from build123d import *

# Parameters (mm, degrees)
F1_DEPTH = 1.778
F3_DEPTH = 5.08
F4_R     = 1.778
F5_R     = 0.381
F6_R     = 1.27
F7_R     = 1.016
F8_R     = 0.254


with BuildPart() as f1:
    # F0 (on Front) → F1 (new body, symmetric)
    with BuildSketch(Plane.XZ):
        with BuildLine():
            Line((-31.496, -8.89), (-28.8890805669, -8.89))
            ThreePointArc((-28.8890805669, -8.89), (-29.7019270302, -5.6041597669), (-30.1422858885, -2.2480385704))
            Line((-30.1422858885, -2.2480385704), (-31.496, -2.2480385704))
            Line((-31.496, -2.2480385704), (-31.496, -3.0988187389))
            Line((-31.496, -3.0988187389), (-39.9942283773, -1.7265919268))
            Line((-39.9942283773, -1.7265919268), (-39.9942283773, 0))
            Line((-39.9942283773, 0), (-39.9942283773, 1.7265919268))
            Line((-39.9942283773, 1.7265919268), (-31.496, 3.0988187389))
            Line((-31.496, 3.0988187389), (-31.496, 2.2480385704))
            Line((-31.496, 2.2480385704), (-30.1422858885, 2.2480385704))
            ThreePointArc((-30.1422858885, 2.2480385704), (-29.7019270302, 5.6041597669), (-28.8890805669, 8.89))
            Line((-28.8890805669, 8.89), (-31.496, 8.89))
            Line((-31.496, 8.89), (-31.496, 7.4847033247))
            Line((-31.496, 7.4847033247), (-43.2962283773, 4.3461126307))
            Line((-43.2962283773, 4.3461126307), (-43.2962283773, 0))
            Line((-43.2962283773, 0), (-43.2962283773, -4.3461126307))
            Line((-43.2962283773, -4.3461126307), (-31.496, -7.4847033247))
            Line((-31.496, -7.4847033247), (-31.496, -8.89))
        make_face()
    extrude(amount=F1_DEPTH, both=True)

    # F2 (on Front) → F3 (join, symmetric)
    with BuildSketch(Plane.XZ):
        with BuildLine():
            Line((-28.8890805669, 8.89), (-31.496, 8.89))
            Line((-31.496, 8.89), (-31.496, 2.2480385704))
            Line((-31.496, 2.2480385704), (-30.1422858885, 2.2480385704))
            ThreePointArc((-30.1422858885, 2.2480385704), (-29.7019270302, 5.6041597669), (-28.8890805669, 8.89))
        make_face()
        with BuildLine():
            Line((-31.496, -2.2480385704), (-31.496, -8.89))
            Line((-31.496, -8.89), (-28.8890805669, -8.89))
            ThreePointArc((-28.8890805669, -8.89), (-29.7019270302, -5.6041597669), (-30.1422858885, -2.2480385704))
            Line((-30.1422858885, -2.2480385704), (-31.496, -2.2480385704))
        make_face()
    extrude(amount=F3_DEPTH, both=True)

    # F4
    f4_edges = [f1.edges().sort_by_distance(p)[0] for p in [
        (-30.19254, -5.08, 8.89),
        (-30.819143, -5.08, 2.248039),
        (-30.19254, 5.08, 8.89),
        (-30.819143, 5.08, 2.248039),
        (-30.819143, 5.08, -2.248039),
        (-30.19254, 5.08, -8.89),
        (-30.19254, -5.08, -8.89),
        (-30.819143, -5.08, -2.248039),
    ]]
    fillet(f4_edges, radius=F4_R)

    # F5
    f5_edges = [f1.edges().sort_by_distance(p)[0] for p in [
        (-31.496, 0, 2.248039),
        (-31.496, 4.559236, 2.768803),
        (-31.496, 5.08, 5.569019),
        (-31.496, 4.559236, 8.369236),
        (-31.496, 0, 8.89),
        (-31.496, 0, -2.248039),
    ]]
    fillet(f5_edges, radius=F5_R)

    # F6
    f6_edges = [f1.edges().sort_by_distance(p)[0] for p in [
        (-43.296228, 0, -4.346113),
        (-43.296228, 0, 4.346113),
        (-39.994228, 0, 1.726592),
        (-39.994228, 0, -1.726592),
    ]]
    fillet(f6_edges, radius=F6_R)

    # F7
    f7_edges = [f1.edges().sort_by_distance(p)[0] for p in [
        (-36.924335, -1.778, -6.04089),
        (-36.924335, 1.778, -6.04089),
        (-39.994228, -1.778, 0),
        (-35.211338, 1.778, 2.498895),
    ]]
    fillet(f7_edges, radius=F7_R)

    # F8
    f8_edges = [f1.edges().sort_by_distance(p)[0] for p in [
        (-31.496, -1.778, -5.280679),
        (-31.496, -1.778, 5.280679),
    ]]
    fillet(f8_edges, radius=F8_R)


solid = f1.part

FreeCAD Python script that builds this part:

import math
import FreeCAD as App
import Part
import Sketcher
from FreeCAD import Vector
Q = App.Units.Quantity


def edges_at(feature, points):
    """Names of the edges that pass closest to the given points."""
    edges = feature.Shape.Edges
    near = lambda p: min(range(len(edges)), key=lambda i: edges[i].distToShape(Part.Vertex(*p))[0])
    return sorted({f"Edge{near(p) + 1}" for p in points})

doc = App.newDocument("Part")
body = doc.addObject("PartDesign::Body", "Body")

sketch1 = body.newObject("Sketcher::SketchObject", "Sketch")
sketch1.AttachmentSupport = (doc.getObject("XZ_Plane"), [""])
sketch1.MapMode = "FlatFace"
sketch1.addGeometry(Part.LineSegment(Vector(-31.5, -8.9, 0), Vector(-28.9, -8.9, 0)), False)
sketch1.addGeometry(Part.ArcOfCircle(Part.Circle(Vector(0, 0, 0), Vector(0, 0, 1), 30.2), math.radians(-175.73), math.radians(-162.9)), False)
sketch1.addGeometry(Part.LineSegment(Vector(-30.1, -2.2, 0), Vector(-31.5, -2.2, 0)), False)
sketch1.addGeometry(Part.LineSegment(Vector(-31.5, -2.2, 0), Vector(-31.5, -3.1, 0)), False)
sketch1.addGeometry(Part.LineSegment(Vector(-31.5, -3.1, 0), Vector(-40, -1.7, 0)), False)
sketch1.addGeometry(Part.LineSegment(Vector(-40, -1.7, 0), Vector(-40, 1.7, 0)), False)
sketch1.addGeometry(Part.LineSegment(Vector(-40, 1.7, 0), Vector(-31.5, 3.1, 0)), False)
sketch1.addGeometry(Part.LineSegment(Vector(-31.5, 3.1, 0), Vector(-31.5, 2.2, 0)), False)
sketch1.addGeometry(Part.LineSegment(Vector(-31.5, 2.2, 0), Vector(-30.1, 2.2, 0)), False)
sketch1.addGeometry(Part.ArcOfCircle(Part.Circle(Vector(0, 0, 0), Vector(0, 0, 1), 30.2), math.radians(162.9), math.radians(175.73)), False)
sketch1.addGeometry(Part.LineSegment(Vector(-28.9, 8.9, 0), Vector(-31.5, 8.9, 0)), False)
sketch1.addGeometry(Part.LineSegment(Vector(-31.5, 8.9, 0), Vector(-31.5, 7.5, 0)), False)
sketch1.addGeometry(Part.LineSegment(Vector(-31.5, 7.5, 0), Vector(-43.3, 4.3, 0)), False)
sketch1.addGeometry(Part.LineSegment(Vector(-43.3, 4.3, 0), Vector(-43.3, -4.3, 0)), False)
sketch1.addGeometry(Part.LineSegment(Vector(-43.3, -4.3, 0), Vector(-31.5, -7.5, 0)), False)
sketch1.addGeometry(Part.LineSegment(Vector(-31.5, -7.5, 0), Vector(-31.5, -8.9, 0)), False)
sketch1.addConstraint(Sketcher.Constraint("Coincident", 0, 2, 1, 2))
sketch1.addConstraint(Sketcher.Constraint("Coincident", 1, 1, 2, 1))
sketch1.addConstraint(Sketcher.Constraint("Coincident", 2, 2, 3, 1))
sketch1.addConstraint(Sketcher.Constraint("Coincident", 3, 2, 4, 1))
sketch1.addConstraint(Sketcher.Constraint("Coincident", 4, 2, 5, 1))
sketch1.addConstraint(Sketcher.Constraint("Coincident", 5, 2, 6, 1))
sketch1.addConstraint(Sketcher.Constraint("Coincident", 6, 2, 7, 1))
sketch1.addConstraint(Sketcher.Constraint("Coincident", 7, 2, 8, 1))
sketch1.addConstraint(Sketcher.Constraint("Coincident", 8, 2, 9, 2))
sketch1.addConstraint(Sketcher.Constraint("Coincident", 9, 1, 10, 1))
sketch1.addConstraint(Sketcher.Constraint("Coincident", 10, 2, 11, 1))
sketch1.addConstraint(Sketcher.Constraint("Coincident", 11, 2, 12, 1))
sketch1.addConstraint(Sketcher.Constraint("Coincident", 12, 2, 13, 1))
sketch1.addConstraint(Sketcher.Constraint("Coincident", 13, 2, 14, 1))
sketch1.addConstraint(Sketcher.Constraint("Coincident", 14, 2, 15, 1))
sketch1.addConstraint(Sketcher.Constraint("Coincident", 15, 2, 0, 1))
sketch1.addConstraint(Sketcher.Constraint("Horizontal", 0))
sketch1.addConstraint(Sketcher.Constraint("Horizontal", 2))
sketch1.addConstraint(Sketcher.Constraint("Vertical", 3))
sketch1.addConstraint(Sketcher.Constraint("Vertical", 5))
sketch1.addConstraint(Sketcher.Constraint("Vertical", 7))
sketch1.addConstraint(Sketcher.Constraint("Horizontal", 8))
sketch1.addConstraint(Sketcher.Constraint("Horizontal", 10))
sketch1.addConstraint(Sketcher.Constraint("Vertical", 11))
sketch1.addConstraint(Sketcher.Constraint("Vertical", 13))
sketch1.addConstraint(Sketcher.Constraint("Vertical", 15))
sketch1.addConstraint(Sketcher.Constraint("Coincident", 1, 3, -1, 1))
sketch1.addConstraint(Sketcher.Constraint("Coincident", 9, 3, -1, 1))
sketch1.addConstraint(Sketcher.Constraint("Equal", 1, 9))
sketch1.addConstraint(Sketcher.Constraint("Symmetric", 3, 2, 6, 2, -1))
sketch1.addConstraint(Sketcher.Constraint("Symmetric", 11, 2, 14, 2, -1))
sketch1.addConstraint(Sketcher.Constraint("Vertical", 1, 1, 8, 2))
sketch1.addConstraint(Sketcher.Constraint("Vertical", 0, 2, 9, 1))
sketch1.addConstraint(Sketcher.Constraint("Vertical", 7, 2, 10, 2))
sketch1.addConstraint(Sketcher.Constraint("Equal", 4, 6))
sketch1.addConstraint(Sketcher.Constraint("Equal", 12, 14))
sketch1.addConstraint(Sketcher.Constraint("Radius", 1, Q("1.19 in")))
sketch1.addConstraint(Sketcher.Constraint("DistanceY", 0, 2, -1, 1, Q("0.35 in")))
sketch1.addConstraint(Sketcher.Constraint("DistanceX", 2, 2, -1, 1, Q("1.24 in")))
sketch1.addConstraint(Sketcher.Constraint("DistanceX", 12, 2, 5, 2, Q("0.13 in")))
sketch1.addConstraint(Sketcher.Constraint("DistanceY", 3, 2, 3, 1, Q("0.85078 mm")))
sketch1.addConstraint(Sketcher.Constraint("DistanceX", 2, 2, 2, 1, Q("1.353714 mm")))
sketch1.addConstraint(Sketcher.Constraint("DistanceY", 5, 1, 5, 2, Q("3.453184 mm")))
sketch1.addConstraint(Sketcher.Constraint("DistanceY", 11, 2, 11, 1, Q("1.405297 mm")))
sketch1.addConstraint(Sketcher.Constraint("DistanceY", 13, 2, 13, 1, Q("8.692225 mm")))
sketch1.addConstraint(Sketcher.Constraint("DistanceX", 4, 2, -1, 1, Q("39.994228 mm")))
pad1 = body.newObject("PartDesign::Pad", "Pad")
pad1.Profile = sketch1
pad1.Length = Q("0.14 in")
pad1.Midplane = True

sketch2 = body.newObject("Sketcher::SketchObject", "Sketch001")
sketch2.AttachmentSupport = (doc.getObject("XZ_Plane"), [""])
sketch2.MapMode = "FlatFace"
sketch2.addGeometry(Part.LineSegment(Vector(-28.9, 8.9, 0), Vector(-31.5, 8.9, 0)), False)
sketch2.addGeometry(Part.LineSegment(Vector(-31.5, 8.9, 0), Vector(-31.5, 2.2, 0)), False)
sketch2.addGeometry(Part.LineSegment(Vector(-31.5, 2.2, 0), Vector(-30.1, 2.2, 0)), False)
sketch2.addGeometry(Part.ArcOfCircle(Part.Circle(Vector(0, 0, 0), Vector(0, 0, 1), 30.2), math.radians(162.9), math.radians(175.73)), False)
sketch2.addGeometry(Part.LineSegment(Vector(-31.5, -2.2, 0), Vector(-31.5, -8.9, 0)), False)
sketch2.addGeometry(Part.LineSegment(Vector(-31.5, -8.9, 0), Vector(-28.9, -8.9, 0)), False)
sketch2.addGeometry(Part.ArcOfCircle(Part.Circle(Vector(0, 0, 0), Vector(0, 0, 1), 30.2), math.radians(-175.73), math.radians(-162.9)), False)
sketch2.addGeometry(Part.LineSegment(Vector(-30.1, -2.2, 0), Vector(-31.5, -2.2, 0)), False)
sketch2.addConstraint(Sketcher.Constraint("Coincident", 0, 2, 1, 1))
sketch2.addConstraint(Sketcher.Constraint("Coincident", 1, 2, 2, 1))
sketch2.addConstraint(Sketcher.Constraint("Coincident", 2, 2, 3, 2))
sketch2.addConstraint(Sketcher.Constraint("Coincident", 3, 1, 0, 1))
sketch2.addConstraint(Sketcher.Constraint("Coincident", 4, 2, 5, 1))
sketch2.addConstraint(Sketcher.Constraint("Coincident", 5, 2, 6, 2))
sketch2.addConstraint(Sketcher.Constraint("Coincident", 6, 1, 7, 1))
sketch2.addConstraint(Sketcher.Constraint("Coincident", 7, 2, 4, 1))
sketch2.addConstraint(Sketcher.Constraint("Horizontal", 0))
sketch2.addConstraint(Sketcher.Constraint("Vertical", 1))
sketch2.addConstraint(Sketcher.Constraint("Horizontal", 2))
sketch2.addConstraint(Sketcher.Constraint("Vertical", 4))
sketch2.addConstraint(Sketcher.Constraint("Horizontal", 5))
sketch2.addConstraint(Sketcher.Constraint("Horizontal", 7))
sketch2.addConstraint(Sketcher.Constraint("Coincident", 3, 3, -1, 1))
sketch2.addConstraint(Sketcher.Constraint("Coincident", 6, 3, -1, 1))
sketch2.addConstraint(Sketcher.Constraint("Equal", 3, 6))
sketch2.addConstraint(Sketcher.Constraint("Symmetric", 0, 2, 4, 2, -1))
sketch2.addConstraint(Sketcher.Constraint("Vertical", 2, 2, 6, 1))
sketch2.addConstraint(Sketcher.Constraint("Radius", 3, Q("1.19 in")))
sketch2.addConstraint(Sketcher.Constraint("DistanceY", 4, 2, 0, 2, Q("0.7 in")))
sketch2.addConstraint(Sketcher.Constraint("DistanceX", 0, 2, -1, 1, Q("1.24 in")))
sketch2.addConstraint(Sketcher.Constraint("DistanceY", 1, 2, 1, 1, Q("6.641961 mm")))
pad2 = body.newObject("PartDesign::Pad", "Pad001")
pad2.Profile = sketch2
pad2.Length = Q("0.4 in")
pad2.Midplane = True
doc.recompute()

fillet = body.newObject("PartDesign::Fillet", "Fillet")
fillet.Base = (pad2, edges_at(pad2, [
    (-30.193, -5.08, 8.89),
    (-30.819, -5.08, 2.248),
    (-30.193, 5.08, 8.89),
    (-30.819, 5.08, 2.248),
    (-30.819, 5.08, -2.248),
    (-30.193, 5.08, -8.89),
    (-30.193, -5.08, -8.89),
    (-30.819, -5.08, -2.248),
]))
fillet.Radius = Q("0.07 in")
doc.recompute()

fillet2 = body.newObject("PartDesign::Fillet", "Fillet001")
fillet2.Base = (fillet, edges_at(fillet, [
    (-31.496, 0, 2.248),
    (-31.496, 4.559, 2.769),
    (-31.496, 5.08, 5.569),
    (-31.496, 4.559, 8.369),
    (-31.496, 0, 8.89),
    (-31.496, 0, -2.248),
]))
fillet2.Radius = Q("0.015 in")
doc.recompute()

fillet3 = body.newObject("PartDesign::Fillet", "Fillet002")
fillet3.Base = (fillet2, edges_at(fillet2, [
    (-43.296, 0, -4.346),
    (-43.296, 0, 4.346),
    (-39.994, 0, 1.727),
    (-39.994, 0, -1.727),
]))
fillet3.Radius = Q("0.05 in")
doc.recompute()

fillet4 = body.newObject("PartDesign::Fillet", "Fillet003")
fillet4.Base = (fillet3, edges_at(fillet3, [
    (-36.924, -1.778, -6.041),
    (-36.924, 1.778, -6.041),
    (-39.994, -1.778, 0),
    (-35.211, 1.778, 2.499),
]))
fillet4.Radius = Q("0.04 in")
doc.recompute()

fillet5 = body.newObject("PartDesign::Fillet", "Fillet004")
fillet5.Base = (fillet4, edges_at(fillet4, [(-31.496, -1.778, -5.281), (-31.496, -1.778, 5.281)]))
fillet5.Radius = Q("0.01 in")

doc.recompute()
